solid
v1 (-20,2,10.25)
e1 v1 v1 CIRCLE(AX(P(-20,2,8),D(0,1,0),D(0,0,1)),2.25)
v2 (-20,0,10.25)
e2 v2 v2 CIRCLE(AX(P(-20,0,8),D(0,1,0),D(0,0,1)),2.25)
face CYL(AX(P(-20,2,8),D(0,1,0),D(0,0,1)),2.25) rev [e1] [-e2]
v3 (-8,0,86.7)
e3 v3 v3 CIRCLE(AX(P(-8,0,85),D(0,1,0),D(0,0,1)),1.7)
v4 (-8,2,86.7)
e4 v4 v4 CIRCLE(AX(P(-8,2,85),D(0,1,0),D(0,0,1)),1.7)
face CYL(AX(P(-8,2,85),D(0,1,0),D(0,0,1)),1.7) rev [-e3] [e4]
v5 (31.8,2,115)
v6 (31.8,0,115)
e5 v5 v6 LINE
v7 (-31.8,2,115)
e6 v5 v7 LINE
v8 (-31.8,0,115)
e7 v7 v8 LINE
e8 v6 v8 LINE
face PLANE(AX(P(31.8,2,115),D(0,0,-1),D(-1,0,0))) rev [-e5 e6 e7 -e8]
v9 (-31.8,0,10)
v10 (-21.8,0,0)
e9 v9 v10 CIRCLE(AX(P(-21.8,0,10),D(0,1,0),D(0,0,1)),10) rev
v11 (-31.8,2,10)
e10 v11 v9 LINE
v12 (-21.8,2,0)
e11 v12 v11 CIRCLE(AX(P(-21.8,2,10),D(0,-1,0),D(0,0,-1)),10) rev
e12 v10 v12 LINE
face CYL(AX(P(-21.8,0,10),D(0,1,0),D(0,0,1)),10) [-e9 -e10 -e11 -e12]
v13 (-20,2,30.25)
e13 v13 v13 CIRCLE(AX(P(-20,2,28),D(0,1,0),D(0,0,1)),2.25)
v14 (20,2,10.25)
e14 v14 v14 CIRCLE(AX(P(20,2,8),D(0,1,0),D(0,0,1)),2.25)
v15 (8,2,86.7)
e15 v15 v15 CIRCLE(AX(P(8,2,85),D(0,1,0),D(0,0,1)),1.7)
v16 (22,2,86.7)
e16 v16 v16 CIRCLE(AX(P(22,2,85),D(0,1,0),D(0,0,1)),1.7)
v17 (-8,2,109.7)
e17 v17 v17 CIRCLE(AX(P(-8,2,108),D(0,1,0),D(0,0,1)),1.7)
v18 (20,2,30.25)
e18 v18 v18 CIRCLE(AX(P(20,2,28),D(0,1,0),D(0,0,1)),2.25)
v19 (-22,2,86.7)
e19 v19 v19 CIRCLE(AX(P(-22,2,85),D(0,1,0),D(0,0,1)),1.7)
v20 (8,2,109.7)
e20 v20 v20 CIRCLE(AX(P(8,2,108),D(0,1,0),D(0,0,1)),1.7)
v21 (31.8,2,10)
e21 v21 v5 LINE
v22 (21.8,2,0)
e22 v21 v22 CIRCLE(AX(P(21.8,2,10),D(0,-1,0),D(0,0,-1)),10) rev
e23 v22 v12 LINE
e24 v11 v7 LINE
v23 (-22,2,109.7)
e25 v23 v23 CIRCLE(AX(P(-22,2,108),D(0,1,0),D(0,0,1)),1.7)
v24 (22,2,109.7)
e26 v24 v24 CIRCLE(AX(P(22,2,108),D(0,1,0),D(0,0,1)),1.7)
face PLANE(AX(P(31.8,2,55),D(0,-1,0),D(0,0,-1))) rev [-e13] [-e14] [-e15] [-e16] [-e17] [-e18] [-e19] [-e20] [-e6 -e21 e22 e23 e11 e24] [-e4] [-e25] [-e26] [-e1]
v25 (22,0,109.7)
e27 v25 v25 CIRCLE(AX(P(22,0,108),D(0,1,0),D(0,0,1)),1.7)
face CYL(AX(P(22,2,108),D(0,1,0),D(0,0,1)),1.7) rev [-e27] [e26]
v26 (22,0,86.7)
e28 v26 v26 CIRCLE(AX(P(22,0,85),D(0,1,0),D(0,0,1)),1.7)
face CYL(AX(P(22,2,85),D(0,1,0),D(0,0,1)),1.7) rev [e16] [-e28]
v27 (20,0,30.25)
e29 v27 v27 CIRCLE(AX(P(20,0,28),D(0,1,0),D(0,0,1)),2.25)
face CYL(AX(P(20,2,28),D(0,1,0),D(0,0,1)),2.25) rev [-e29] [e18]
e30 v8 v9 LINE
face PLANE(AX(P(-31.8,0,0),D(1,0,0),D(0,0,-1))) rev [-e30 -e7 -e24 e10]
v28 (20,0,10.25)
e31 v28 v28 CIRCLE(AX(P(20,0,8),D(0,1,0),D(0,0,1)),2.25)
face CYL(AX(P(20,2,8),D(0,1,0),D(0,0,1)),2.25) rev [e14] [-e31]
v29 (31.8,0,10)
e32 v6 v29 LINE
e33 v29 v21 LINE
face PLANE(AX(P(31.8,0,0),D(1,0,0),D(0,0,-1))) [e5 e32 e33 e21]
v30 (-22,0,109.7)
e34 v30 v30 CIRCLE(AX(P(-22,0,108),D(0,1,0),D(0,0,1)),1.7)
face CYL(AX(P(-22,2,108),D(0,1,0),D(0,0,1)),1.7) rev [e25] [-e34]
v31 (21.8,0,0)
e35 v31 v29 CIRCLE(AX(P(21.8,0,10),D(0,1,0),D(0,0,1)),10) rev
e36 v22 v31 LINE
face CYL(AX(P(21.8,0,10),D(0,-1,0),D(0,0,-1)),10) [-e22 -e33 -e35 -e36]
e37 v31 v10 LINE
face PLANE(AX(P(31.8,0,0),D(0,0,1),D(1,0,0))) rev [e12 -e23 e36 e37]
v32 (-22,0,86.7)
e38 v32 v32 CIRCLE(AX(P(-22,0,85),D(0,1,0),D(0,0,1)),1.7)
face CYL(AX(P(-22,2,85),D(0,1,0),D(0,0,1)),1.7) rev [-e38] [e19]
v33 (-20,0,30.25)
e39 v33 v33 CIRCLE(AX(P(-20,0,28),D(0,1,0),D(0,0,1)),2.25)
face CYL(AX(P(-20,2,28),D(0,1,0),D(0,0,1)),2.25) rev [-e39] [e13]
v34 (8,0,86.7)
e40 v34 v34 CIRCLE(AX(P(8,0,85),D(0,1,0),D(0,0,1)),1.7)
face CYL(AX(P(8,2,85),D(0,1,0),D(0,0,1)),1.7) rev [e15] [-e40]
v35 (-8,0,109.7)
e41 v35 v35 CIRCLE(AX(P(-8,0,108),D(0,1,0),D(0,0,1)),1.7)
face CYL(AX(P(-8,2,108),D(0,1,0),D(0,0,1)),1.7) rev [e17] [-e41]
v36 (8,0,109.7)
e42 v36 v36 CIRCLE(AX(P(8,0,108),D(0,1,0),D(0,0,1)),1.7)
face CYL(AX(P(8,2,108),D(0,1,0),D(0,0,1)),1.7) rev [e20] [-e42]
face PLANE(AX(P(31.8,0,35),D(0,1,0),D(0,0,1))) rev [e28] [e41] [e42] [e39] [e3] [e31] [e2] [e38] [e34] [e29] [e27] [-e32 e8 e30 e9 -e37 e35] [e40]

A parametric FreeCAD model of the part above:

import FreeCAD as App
import Part
import Sketcher
from FreeCAD import Vector


def edges_at(feature, points):
    """Names of the edges that pass closest to the given points."""
    edges = feature.Shape.Edges
    near = lambda p: min(range(len(edges)), key=lambda i: edges[i].distToShape(Part.Vertex(*p))[0])
    return sorted({f"Edge{near(p) + 1}" for p in points})

doc = App.newDocument("Part")
body = doc.addObject("PartDesign::Body", "Body")

# Sketch on YZ plane
sketch1 = body.newObject("Sketcher::SketchObject", "Sketch")
sketch1.AttachmentSupport = (doc.getObject("YZ_Plane"), [""])
sketch1.MapMode = "FlatFace"
sketch1.addGeometry(Part.LineSegment(Vector(0, 0, 0), Vector(2, 0, 0)), False)
sketch1.addGeometry(Part.LineSegment(Vector(2, 0, 0), Vector(2, 115, 0)), False)
sketch1.addGeometry(Part.LineSegment(Vector(2, 115, 0), Vector(0, 115, 0)), False)
sketch1.addGeometry(Part.LineSegment(Vector(0, 115, 0), Vector(0, 0, 0)), False)
sketch1.addConstraint(Sketcher.Constraint("Coincident", 0, 2, 1, 1))
sketch1.addConstraint(Sketcher.Constraint("Coincident", 1, 2, 2, 1))
sketch1.addConstraint(Sketcher.Constraint("Coincident", 2, 2, 3, 1))
sketch1.addConstraint(Sketcher.Constraint("Coincident", 3, 2, 0, 1))
sketch1.addConstraint(Sketcher.Constraint("Horizontal", 0))
sketch1.addConstraint(Sketcher.Constraint("Vertical", 1))
sketch1.addConstraint(Sketcher.Constraint("Horizontal", 2))
sketch1.addConstraint(Sketcher.Constraint("Vertical", 3))
sketch1.addConstraint(Sketcher.Constraint("Coincident", 3, 2, -1, 1))
sketch1.addConstraint(Sketcher.Constraint("DistanceX", 0, 1, 0, 2, 2.0))
sketch1.addConstraint(Sketcher.Constraint("DistanceY", 1, 1, 1, 2, 115.0))
pad1 = body.newObject("PartDesign::Pad", "Pad")
pad1.Profile = sketch1
pad1.Length = 63.6
pad1.Midplane = True

# Sketch on XZ plane
sketch2 = body.newObject("Sketcher::SketchObject", "Sketch001")
sketch2.AttachmentSupport = (doc.getObject("XZ_Plane"), [""])
sketch2.MapMode = "FlatFace"
sketch2.AttachmentOffset = App.Placement(Vector(0, 0, -2), App.Rotation())
sketch2.addGeometry(Part.Circle(Vector(-22, 108, 0), Vector(0, 0, 1), 1.7), False)
sketch2.addGeometry(Part.Circle(Vector(-22, 85, 0), Vector(0, 0, 1), 1.7), False)
sketch2.addGeometry(Part.Circle(Vector(-8, 85, 0), Vector(0, 0, 1), 1.7), False)
sketch2.addGeometry(Part.Circle(Vector(-8, 108, 0), Vector(0, 0, 1), 1.7), False)
sketch2.addGeometry(Part.Circle(Vector(22, 108, 0), Vector(0, 0, 1), 1.7), False)
sketch2.addGeometry(Part.Circle(Vector(8, 108, 0), Vector(0, 0, 1), 1.7), False)
sketch2.addGeometry(Part.Circle(Vector(8, 85, 0), Vector(0, 0, 1), 1.7), False)
sketch2.addGeometry(Part.Circle(Vector(22, 85, 0), Vector(0, 0, 1), 1.7), False)
sketch2.addConstraint(Sketcher.Constraint("Equal", 0, 1))
sketch2.addConstraint(Sketcher.Constraint("Equal", 1, 2))
sketch2.addConstraint(Sketcher.Constraint("Equal", 2, 3))
sketch2.addConstraint(Sketcher.Constraint("Equal", 3, 4))
sketch2.addConstraint(Sketcher.Constraint("Equal", 4, 5))
sketch2.addConstraint(Sketcher.Constraint("Equal", 5, 6))
sketch2.addConstraint(Sketcher.Constraint("Equal", 6, 7))
sketch2.addConstraint(Sketcher.Constraint("Symmetric", 0, 3, 4, 3, -2))
sketch2.addConstraint(Sketcher.Constraint("Symmetric", 3, 3, 5, 3, -2))
sketch2.addConstraint(Sketcher.Constraint("Symmetric", 2, 3, 6, 3, -2))
sketch2.addConstraint(Sketcher.Constraint("Symmetric", 1, 3, 7, 3, -2))
sketch2.addConstraint(Sketcher.Constraint("Horizontal", 1, 3, 2, 3))
sketch2.addConstraint(Sketcher.Constraint("Horizontal", 0, 3, 3, 3))
sketch2.addConstraint(Sketcher.Constraint("Vertical", 0, 3, 1, 3))
sketch2.addConstraint(Sketcher.Constraint("Vertical", 2, 3, 3, 3))
sketch2.addConstraint(Sketcher.Constraint("Diameter", 0, 3.4))
sketch2.addConstraint(Sketcher.Constraint("DistanceX", 0, 3, -1, 1, 22.0))
sketch2.addConstraint(Sketcher.Constraint("DistanceY", -1, 1, 0, 3, 108.0))
sketch2.addConstraint(Sketcher.Constraint("DistanceY", -1, 1, 1, 3, 85.0))
sketch2.addConstraint(Sketcher.Constraint("DistanceX", 2, 3, -1, 1, 8.0))
doc.recompute()
hole = body.newObject("PartDesign::Hole", "Hole")
hole.Profile = sketch2
hole.ThreadType = "None"
hole.Diameter = 3.4
hole.DepthType = "Dimension"
hole.Depth = 8.5
hole.DrillPoint = "Angled"
hole.DrillPointAngle = 118
hole.Reversed = True

# Sketch on XZ plane
sketch3 = body.newObject("Sketcher::SketchObject", "Sketch002")
sketch3.AttachmentSupport = (doc.getObject("XZ_Plane"), [""])
sketch3.MapMode = "FlatFace"
sketch3.AttachmentOffset = App.Placement(Vector(0, 0, -2), App.Rotation())
sketch3.addGeometry(Part.Circle(Vector(-20, 28, 0), Vector(0, 0, 1), 2.2), False)
sketch3.addGeometry(Part.Circle(Vector(20, 28, 0), Vector(0, 0, 1), 2.2), False)
sketch3.addGeometry(Part.Circle(Vector(20, 8, 0), Vector(0, 0, 1), 2.2), False)
sketch3.addGeometry(Part.Circle(Vector(-20, 8, 0), Vector(0, 0, 1), 2.2), False)
sketch3.addConstraint(Sketcher.Constraint("Equal", 0, 1))
sketch3.addConstraint(Sketcher.Constraint("Equal", 1, 2))
sketch3.addConstraint(Sketcher.Constraint("Equal", 2, 3))
sketch3.addConstraint(Sketcher.Constraint("Symmetric", 0, 3, 1, 3, -2))
sketch3.addConstraint(Sketcher.Constraint("Symmetric", 2, 3, 3, 3, -2))
sketch3.addConstraint(Sketcher.Constraint("Vertical", 1, 3, 2, 3))
sketch3.addConstraint(Sketcher.Constraint("Diameter", 0, 4.5))
sketch3.addConstraint(Sketcher.Constraint("DistanceX", 0, 3, -1, 1, 20.0))
sketch3.addConstraint(Sketcher.Constraint("DistanceY", -1, 1, 0, 3, 28.0))
sketch3.addConstraint(Sketcher.Constraint("DistanceY", -1, 1, 2, 3, 8.0))
doc.recompute()
hole2 = body.newObject("PartDesign::Hole", "Hole001")
hole2.Profile = sketch3
hole2.ThreadType = "None"
hole2.Diameter = 4.5
hole2.DepthType = "Dimension"
hole2.Depth = 8.5
hole2.DrillPoint = "Angled"
hole2.DrillPointAngle = 118
hole2.Reversed = True
doc.recompute()

fillet = body.newObject("PartDesign::Fillet", "Fillet")
fillet.Base = (hole2, edges_at(hole2, [(-31.8, 1, 0), (31.8, 1, 0)]))
fillet.Radius = 10

doc.recompute()
